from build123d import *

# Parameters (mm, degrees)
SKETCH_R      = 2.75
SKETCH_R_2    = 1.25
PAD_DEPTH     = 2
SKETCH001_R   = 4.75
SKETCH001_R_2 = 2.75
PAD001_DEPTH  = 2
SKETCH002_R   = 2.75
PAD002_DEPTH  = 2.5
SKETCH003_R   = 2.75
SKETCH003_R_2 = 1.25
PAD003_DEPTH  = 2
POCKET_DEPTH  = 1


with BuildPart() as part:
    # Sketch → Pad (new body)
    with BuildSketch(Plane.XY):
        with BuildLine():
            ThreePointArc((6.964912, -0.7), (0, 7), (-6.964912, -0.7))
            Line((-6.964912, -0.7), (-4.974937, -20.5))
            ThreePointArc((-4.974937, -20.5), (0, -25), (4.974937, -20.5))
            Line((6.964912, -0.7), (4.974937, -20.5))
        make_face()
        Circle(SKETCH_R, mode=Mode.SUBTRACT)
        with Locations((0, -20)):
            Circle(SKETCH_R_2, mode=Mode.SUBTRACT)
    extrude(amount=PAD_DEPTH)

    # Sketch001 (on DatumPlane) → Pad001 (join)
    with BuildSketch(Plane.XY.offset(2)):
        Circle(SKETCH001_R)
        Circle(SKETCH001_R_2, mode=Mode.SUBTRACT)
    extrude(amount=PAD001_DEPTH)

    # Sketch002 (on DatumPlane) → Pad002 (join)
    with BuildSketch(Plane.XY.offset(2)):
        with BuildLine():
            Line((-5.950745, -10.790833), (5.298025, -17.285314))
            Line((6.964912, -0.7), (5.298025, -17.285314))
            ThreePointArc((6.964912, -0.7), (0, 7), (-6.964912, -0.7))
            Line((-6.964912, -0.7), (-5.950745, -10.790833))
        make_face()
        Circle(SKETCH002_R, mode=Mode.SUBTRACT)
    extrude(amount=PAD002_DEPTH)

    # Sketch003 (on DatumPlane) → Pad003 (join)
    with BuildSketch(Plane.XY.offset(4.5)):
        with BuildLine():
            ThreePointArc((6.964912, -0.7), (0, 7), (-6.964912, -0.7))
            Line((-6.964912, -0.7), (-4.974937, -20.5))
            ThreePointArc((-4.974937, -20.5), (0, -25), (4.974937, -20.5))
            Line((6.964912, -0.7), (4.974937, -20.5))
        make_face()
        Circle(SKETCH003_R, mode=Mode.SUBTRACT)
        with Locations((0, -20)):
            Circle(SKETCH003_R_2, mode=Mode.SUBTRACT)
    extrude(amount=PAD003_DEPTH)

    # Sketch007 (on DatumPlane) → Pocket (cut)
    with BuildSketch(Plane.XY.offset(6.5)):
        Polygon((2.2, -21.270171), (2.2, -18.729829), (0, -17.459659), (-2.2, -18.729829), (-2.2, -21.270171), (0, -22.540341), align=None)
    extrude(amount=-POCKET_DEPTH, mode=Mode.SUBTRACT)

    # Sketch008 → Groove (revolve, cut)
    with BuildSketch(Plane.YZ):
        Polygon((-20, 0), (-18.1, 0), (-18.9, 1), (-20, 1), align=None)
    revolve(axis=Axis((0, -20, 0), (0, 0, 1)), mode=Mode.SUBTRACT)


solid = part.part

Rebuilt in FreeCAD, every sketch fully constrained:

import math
import FreeCAD as App
import Part
import Sketcher
Q = App.Units.Quantity

doc = App.newDocument("Part")
body = doc.addObject("PartDesign::Body", "Body")

# Sketch on XY plane
sketch1 = body.newObject("Sketcher::SketchObject", "Sketch")
sketch1.AttachmentSupport = (doc.getObject("XY_Plane"), [""])
sketch1.MapMode = "FlatFace"
sketch1.addGeometry(Part.ArcOfCircle(Part.Circle(App.Vector(0, 0, 0), App.Vector(0, 0, 1), 7), math.radians(-5.739171), math.radians(185.739171)), False)
sketch1.addGeometry(Part.LineSegment(App.Vector(-6.964912, -0.7, 0), App.Vector(-4.974937, -20.5, 0)), False)
sketch1.addGeometry(Part.ArcOfCircle(Part.Circle(App.Vector(0, -20, 0), App.Vector(0, 0, 1), 5), math.radians(-174.260832), math.radians(-5.739168)), False)
sketch1.addGeometry(Part.LineSegment(App.Vector(4.974937, -20.5, 0), App.Vector(6.964912, -0.7, 0)), False)
sketch1.addGeometry(Part.Circle(App.Vector(0, -20, 0), App.Vector(0, 0, 1), 1.25), False)
sketch1.addGeometry(Part.Circle(App.Vector(0, 0, 0), App.Vector(0, 0, 1), 2.75), False)
sketch1.addConstraint(Sketcher.Constraint("Tangent", 0, 2, 1, 1))
sketch1.addConstraint(Sketcher.Constraint("Tangent", 1, 2, 2, 1))
sketch1.addConstraint(Sketcher.Constraint("Tangent", 2, 2, 3, 1))
sketch1.addConstraint(Sketcher.Constraint("Tangent", 3, 2, 0, 1))
sketch1.addConstraint(Sketcher.Constraint("Coincident", 0, 3, -1, 1))
sketch1.addConstraint(Sketcher.Constraint("Coincident", 5, 3, -1, 1))
sketch1.addConstraint(Sketcher.Constraint("Coincident", 4, 3, 2, 3))
sketch1.addConstraint(Sketcher.Constraint("PointOnObject", 2, 3, -2))
sketch1.addConstraint(Sketcher.Constraint("Radius", 0, Q("7 mm")))
sketch1.addConstraint(Sketcher.Constraint("Radius", 2, Q("5 mm")))
sketch1.addConstraint(Sketcher.Constraint("Diameter", 4, Q("2.5 mm")))
sketch1.addConstraint(Sketcher.Constraint("Diameter", 5, Q("5.5 mm")))
sketch1.addConstraint(Sketcher.Constraint("DistanceY", 2, 3, -1, 1, Q("20 mm")))
pad1 = body.newObject("PartDesign::Pad", "Pad")
pad1.Profile = sketch1
pad1.Length = 2

# Sketch on XY plane
sketch2 = body.newObject("Sketcher::SketchObject", "Sketch001")
sketch2.AttachmentSupport = (doc.getObject("XY_Plane"), [""])
sketch2.MapMode = "FlatFace"
sketch2.AttachmentOffset = App.Placement(App.Vector(0, 0, 2), App.Rotation())
sketch2.addGeometry(Part.Circle(App.Vector(0, 0, 0), App.Vector(0, 0, 1), 4.75), False)
sketch2.addGeometry(Part.Circle(App.Vector(0, 0, 0), App.Vector(0, 0, 1), 2.75), False)
sketch2.addConstraint(Sketcher.Constraint("Coincident", 0, 3, -1, 1))
sketch2.addConstraint(Sketcher.Constraint("Coincident", 1, 3, -1, 1))
sketch2.addConstraint(Sketcher.Constraint("Diameter", 0, Q("9.5 mm")))
sketch2.addConstraint(Sketcher.Constraint("Diameter", 1, Q("5.5 mm")))
pad2 = body.newObject("PartDesign::Pad", "Pad001")
pad2.Profile = sketch2
pad2.Length = 2

# Sketch on XY plane
sketch3 = body.newObject("Sketcher::SketchObject", "Sketch002")
sketch3.AttachmentSupport = (doc.getObject("XY_Plane"), [""])
sketch3.MapMode = "FlatFace"
sketch3.AttachmentOffset = App.Placement(App.Vector(0, 0, 2), App.Rotation())
sketch3.addGeometry(Part.LineSegment(App.Vector(-5.950745, -10.790833, 0), App.Vector(5.298025, -17.285314, 0)), False)
sketch3.addGeometry(Part.LineSegment(App.Vector(5.298025, -17.285314, 0), App.Vector(6.964912, -0.7, 0)), False)
sketch3.addGeometry(Part.ArcOfCircle(Part.Circle(App.Vector(0, 0, 0), App.Vector(0, 0, 1), 7), math.radians(-5.739171), math.radians(185.739171)), False)
sketch3.addGeometry(Part.LineSegment(App.Vector(-6.964912, -0.7, 0), App.Vector(-5.950745, -10.790833, 0)), False)
sketch3.addGeometry(Part.Circle(App.Vector(0, 0, 0), App.Vector(0, 0, 1), 2.75), False)
sketch3.addConstraint(Sketcher.Constraint("Coincident", 0, 2, 1, 1))
sketch3.addConstraint(Sketcher.Constraint("Tangent", 1, 2, 2, 1))
sketch3.addConstraint(Sketcher.Constraint("Tangent", 2, 2, 3, 1))
sketch3.addConstraint(Sketcher.Constraint("Coincident", 3, 2, 0, 1))
sketch3.addConstraint(Sketcher.Constraint("Coincident", 2, 3, -1, 1))
sketch3.addConstraint(Sketcher.Constraint("Coincident", 4, 3, -1, 1))
sketch3.addConstraint(Sketcher.Constraint("Horizontal", 1, 2, 2, 2))
sketch3.addConstraint(Sketcher.Constraint("Radius", 2, Q("7 mm")))
sketch3.addConstraint(Sketcher.Constraint("Diameter", 4, Q("5.5 mm")))
sketch3.addConstraint(Sketcher.Constraint("Angle", 0, Q("-30.000002 deg")))
sketch3.addConstraint(Sketcher.Constraint("DistanceY", 1, 2, -1, 1, Q("0.7 mm")))
sketch3.addConstraint(Sketcher.Constraint("Distance", 0, Q("12.988961 mm")))
pad3 = body.newObject("PartDesign::Pad", "Pad002")
pad3.Profile = sketch3
pad3.Length = 2.5

# Sketch on XY plane
sketch4 = body.newObject("Sketcher::SketchObject", "Sketch003")
sketch4.AttachmentSupport = (doc.getObject("XY_Plane"), [""])
sketch4.MapMode = "FlatFace"
sketch4.AttachmentOffset = App.Placement(App.Vector(0, 0, 4.5), App.Rotation())
sketch4.addGeometry(Part.ArcOfCircle(Part.Circle(App.Vector(0, 0, 0), App.Vector(0, 0, 1), 7), math.radians(-5.739171), math.radians(185.739171)), False)
sketch4.addGeometry(Part.LineSegment(App.Vector(-6.964912, -0.7, 0), App.Vector(-4.974937, -20.5, 0)), False)
sketch4.addGeometry(Part.ArcOfCircle(Part.Circle(App.Vector(0, -20, 0), App.Vector(0, 0, 1), 5), math.radians(-174.260832), math.radians(-5.739168)), False)
sketch4.addGeometry(Part.LineSegment(App.Vector(4.974937, -20.5, 0), App.Vector(6.964912, -0.7, 0)), False)
sketch4.addGeometry(Part.Circle(App.Vector(0, -20, 0), App.Vector(0, 0, 1), 1.25), False)
sketch4.addGeometry(Part.Circle(App.Vector(0, 0, 0), App.Vector(0, 0, 1), 2.75), False)
sketch4.addConstraint(Sketcher.Constraint("Tangent", 0, 2, 1, 1))
sketch4.addConstraint(Sketcher.Constraint("Tangent", 1, 2, 2, 1))
sketch4.addConstraint(Sketcher.Constraint("Tangent", 2, 2, 3, 1))
sketch4.addConstraint(Sketcher.Constraint("Tangent", 3, 2, 0, 1))
sketch4.addConstraint(Sketcher.Constraint("Coincident", 0, 3, -1, 1))
sketch4.addConstraint(Sketcher.Constraint("Coincident", 5, 3, -1, 1))
sketch4.addConstraint(Sketcher.Constraint("Coincident", 4, 3, 2, 3))
sketch4.addConstraint(Sketcher.Constraint("PointOnObject", 2, 3, -2))
sketch4.addConstraint(Sketcher.Constraint("Radius", 0, Q("7 mm")))
sketch4.addConstraint(Sketcher.Constraint("Radius", 2, Q("5 mm")))
sketch4.addConstraint(Sketcher.Constraint("Diameter", 4, Q("2.5 mm")))
sketch4.addConstraint(Sketcher.Constraint("Diameter", 5, Q("5.5 mm")))
sketch4.addConstraint(Sketcher.Constraint("DistanceY", 2, 3, -1, 1, Q("20 mm")))
pad4 = body.newObject("PartDesign::Pad", "Pad003")
pad4.Profile = sketch4
pad4.Length = 2

# Sketch on XY plane
sketch5 = body.newObject("Sketcher::SketchObject", "Sketch004")
sketch5.AttachmentSupport = (doc.getObject("XY_Plane"), [""])
sketch5.MapMode = "FlatFace"
sketch5.AttachmentOffset = App.Placement(App.Vector(0, 0, 6.5), App.Rotation())
sketch5.addGeometry(Part.LineSegment(App.Vector(2.2, -21.270171, 0), App.Vector(2.2, -18.729829, 0)), False)
sketch5.addGeometry(Part.LineSegment(App.Vector(2.2, -18.729829, 0), App.Vector(0, -17.459659, 0)), False)
sketch5.addGeometry(Part.LineSegment(App.Vector(0, -17.459659, 0), App.Vector(-2.2, -18.729829, 0)), False)
sketch5.addGeometry(Part.LineSegment(App.Vector(-2.2, -18.729829, 0), App.Vector(-2.2, -21.270171, 0)), False)
sketch5.addGeometry(Part.LineSegment(App.Vector(-2.2, -21.270171, 0), App.Vector(0, -22.540341, 0)), False)
sketch5.addGeometry(Part.LineSegment(App.Vector(0, -22.540341, 0), App.Vector(2.2, -21.270171, 0)), False)
sketch5.addConstraint(Sketcher.Constraint("Coincident", 0, 2, 1, 1))
sketch5.addConstraint(Sketcher.Constraint("Coincident", 1, 2, 2, 1))
sketch5.addConstraint(Sketcher.Constraint("Coincident", 2, 2, 3, 1))
sketch5.addConstraint(Sketcher.Constraint("Coincident", 3, 2, 4, 1))
sketch5.addConstraint(Sketcher.Constraint("Coincident", 4, 2, 5, 1))
sketch5.addConstraint(Sketcher.Constraint("Coincident", 5, 2, 0, 1))
sketch5.addConstraint(Sketcher.Constraint("Vertical", 0))
sketch5.addConstraint(Sketcher.Constraint("Vertical", 3))
sketch5.addConstraint(Sketcher.Constraint("Symmetric", 0, 2, 2, 2, -2))
sketch5.addConstraint(Sketcher.Constraint("PointOnObject", 1, 2, -2))
sketch5.addConstraint(Sketcher.Constraint("PointOnObject", 4, 2, -2))
sketch5.addConstraint(Sketcher.Constraint("Parallel", 1, 4))
sketch5.addConstraint(Sketcher.Constraint("Parallel", 2, 5))
sketch5.addConstraint(Sketcher.Constraint("Angle", 1, Q("150.000012 deg")))
sketch5.addConstraint(Sketcher.Constraint("DistanceX", -1, 1, 0, 2, Q("2.2 mm")))
sketch5.addConstraint(Sketcher.Constraint("DistanceY", 0, 1, 0, 2, Q("2.540342 mm")))
sketch5.addConstraint(Sketcher.Constraint("DistanceY", 0, 2, -1, 1, Q("18.729829 mm")))
pocket1 = body.newObject("PartDesign::Pocket", "Pocket")
pocket1.Profile = sketch5
pocket1.Length = 1

# Sketch on YZ plane
sketch6 = body.newObject("Sketcher::SketchObject", "Sketch005")
sketch6.AttachmentSupport = (doc.getObject("YZ_Plane"), [""])
sketch6.MapMode = "FlatFace"
sketch6.addGeometry(Part.LineSegment(App.Vector(-20, 0, 0), App.Vector(-18.1, 0, 0)), False)
sketch6.addGeometry(Part.LineSegment(App.Vector(-18.1, 0, 0), App.Vector(-18.9, 1, 0)), False)
sketch6.addGeometry(Part.LineSegment(App.Vector(-18.9, 1, 0), App.Vector(-20, 1, 0)), False)
sketch6.addGeometry(Part.LineSegment(App.Vector(-20, 1, 0), App.Vector(-20, 0, 0)), False)
sketch6.addGeometry(Part.LineSegment(App.Vector(-20, 0, 0), App.Vector(-20, 1, 0)), True)  # axis
sketch6.addConstraint(Sketcher.Constraint("Coincident", 0, 2, 1, 1))
sketch6.addConstraint(Sketcher.Constraint("Coincident", 1, 2, 2, 1))
sketch6.addConstraint(Sketcher.Constraint("Coincident", 2, 2, 3, 1))
sketch6.addConstraint(Sketcher.Constraint("Coincident", 3, 2, 0, 1))
sketch6.addConstraint(Sketcher.Constraint("Horizontal", 0))
sketch6.addConstraint(Sketcher.Constraint("Horizontal", 2))
sketch6.addConstraint(Sketcher.Constraint("Vertical", 3))
sketch6.addConstraint(Sketcher.Constraint("Vertical", 4))
sketch6.addConstraint(Sketcher.Constraint("Coincident", 4, 1, 3, 2))
sketch6.addConstraint(Sketcher.Constraint("PointOnObject", 0, 2, -1))
sketch6.addConstraint(Sketcher.Constraint("Horizontal", 1, 2, 4, 2))
sketch6.addConstraint(Sketcher.Constraint("DistanceY", 3, 2, 3, 1, Q("1 mm")))
sketch6.addConstraint(Sketcher.Constraint("DistanceX", 0, 1, 0, 2, Q("1.9 mm")))
sketch6.addConstraint(Sketcher.Constraint("DistanceX", 2, 2, 2, 1, Q("1.1 mm")))
sketch6.addConstraint(Sketcher.Constraint("DistanceX", 2, 2, -1, 1, Q("20 mm")))
groove = body.newObject("PartDesign::Groove", "Groove")
groove.Profile = sketch6
groove.ReferenceAxis = (sketch6, ["Axis0"])
groove.Angle = 360

doc.recompute()
